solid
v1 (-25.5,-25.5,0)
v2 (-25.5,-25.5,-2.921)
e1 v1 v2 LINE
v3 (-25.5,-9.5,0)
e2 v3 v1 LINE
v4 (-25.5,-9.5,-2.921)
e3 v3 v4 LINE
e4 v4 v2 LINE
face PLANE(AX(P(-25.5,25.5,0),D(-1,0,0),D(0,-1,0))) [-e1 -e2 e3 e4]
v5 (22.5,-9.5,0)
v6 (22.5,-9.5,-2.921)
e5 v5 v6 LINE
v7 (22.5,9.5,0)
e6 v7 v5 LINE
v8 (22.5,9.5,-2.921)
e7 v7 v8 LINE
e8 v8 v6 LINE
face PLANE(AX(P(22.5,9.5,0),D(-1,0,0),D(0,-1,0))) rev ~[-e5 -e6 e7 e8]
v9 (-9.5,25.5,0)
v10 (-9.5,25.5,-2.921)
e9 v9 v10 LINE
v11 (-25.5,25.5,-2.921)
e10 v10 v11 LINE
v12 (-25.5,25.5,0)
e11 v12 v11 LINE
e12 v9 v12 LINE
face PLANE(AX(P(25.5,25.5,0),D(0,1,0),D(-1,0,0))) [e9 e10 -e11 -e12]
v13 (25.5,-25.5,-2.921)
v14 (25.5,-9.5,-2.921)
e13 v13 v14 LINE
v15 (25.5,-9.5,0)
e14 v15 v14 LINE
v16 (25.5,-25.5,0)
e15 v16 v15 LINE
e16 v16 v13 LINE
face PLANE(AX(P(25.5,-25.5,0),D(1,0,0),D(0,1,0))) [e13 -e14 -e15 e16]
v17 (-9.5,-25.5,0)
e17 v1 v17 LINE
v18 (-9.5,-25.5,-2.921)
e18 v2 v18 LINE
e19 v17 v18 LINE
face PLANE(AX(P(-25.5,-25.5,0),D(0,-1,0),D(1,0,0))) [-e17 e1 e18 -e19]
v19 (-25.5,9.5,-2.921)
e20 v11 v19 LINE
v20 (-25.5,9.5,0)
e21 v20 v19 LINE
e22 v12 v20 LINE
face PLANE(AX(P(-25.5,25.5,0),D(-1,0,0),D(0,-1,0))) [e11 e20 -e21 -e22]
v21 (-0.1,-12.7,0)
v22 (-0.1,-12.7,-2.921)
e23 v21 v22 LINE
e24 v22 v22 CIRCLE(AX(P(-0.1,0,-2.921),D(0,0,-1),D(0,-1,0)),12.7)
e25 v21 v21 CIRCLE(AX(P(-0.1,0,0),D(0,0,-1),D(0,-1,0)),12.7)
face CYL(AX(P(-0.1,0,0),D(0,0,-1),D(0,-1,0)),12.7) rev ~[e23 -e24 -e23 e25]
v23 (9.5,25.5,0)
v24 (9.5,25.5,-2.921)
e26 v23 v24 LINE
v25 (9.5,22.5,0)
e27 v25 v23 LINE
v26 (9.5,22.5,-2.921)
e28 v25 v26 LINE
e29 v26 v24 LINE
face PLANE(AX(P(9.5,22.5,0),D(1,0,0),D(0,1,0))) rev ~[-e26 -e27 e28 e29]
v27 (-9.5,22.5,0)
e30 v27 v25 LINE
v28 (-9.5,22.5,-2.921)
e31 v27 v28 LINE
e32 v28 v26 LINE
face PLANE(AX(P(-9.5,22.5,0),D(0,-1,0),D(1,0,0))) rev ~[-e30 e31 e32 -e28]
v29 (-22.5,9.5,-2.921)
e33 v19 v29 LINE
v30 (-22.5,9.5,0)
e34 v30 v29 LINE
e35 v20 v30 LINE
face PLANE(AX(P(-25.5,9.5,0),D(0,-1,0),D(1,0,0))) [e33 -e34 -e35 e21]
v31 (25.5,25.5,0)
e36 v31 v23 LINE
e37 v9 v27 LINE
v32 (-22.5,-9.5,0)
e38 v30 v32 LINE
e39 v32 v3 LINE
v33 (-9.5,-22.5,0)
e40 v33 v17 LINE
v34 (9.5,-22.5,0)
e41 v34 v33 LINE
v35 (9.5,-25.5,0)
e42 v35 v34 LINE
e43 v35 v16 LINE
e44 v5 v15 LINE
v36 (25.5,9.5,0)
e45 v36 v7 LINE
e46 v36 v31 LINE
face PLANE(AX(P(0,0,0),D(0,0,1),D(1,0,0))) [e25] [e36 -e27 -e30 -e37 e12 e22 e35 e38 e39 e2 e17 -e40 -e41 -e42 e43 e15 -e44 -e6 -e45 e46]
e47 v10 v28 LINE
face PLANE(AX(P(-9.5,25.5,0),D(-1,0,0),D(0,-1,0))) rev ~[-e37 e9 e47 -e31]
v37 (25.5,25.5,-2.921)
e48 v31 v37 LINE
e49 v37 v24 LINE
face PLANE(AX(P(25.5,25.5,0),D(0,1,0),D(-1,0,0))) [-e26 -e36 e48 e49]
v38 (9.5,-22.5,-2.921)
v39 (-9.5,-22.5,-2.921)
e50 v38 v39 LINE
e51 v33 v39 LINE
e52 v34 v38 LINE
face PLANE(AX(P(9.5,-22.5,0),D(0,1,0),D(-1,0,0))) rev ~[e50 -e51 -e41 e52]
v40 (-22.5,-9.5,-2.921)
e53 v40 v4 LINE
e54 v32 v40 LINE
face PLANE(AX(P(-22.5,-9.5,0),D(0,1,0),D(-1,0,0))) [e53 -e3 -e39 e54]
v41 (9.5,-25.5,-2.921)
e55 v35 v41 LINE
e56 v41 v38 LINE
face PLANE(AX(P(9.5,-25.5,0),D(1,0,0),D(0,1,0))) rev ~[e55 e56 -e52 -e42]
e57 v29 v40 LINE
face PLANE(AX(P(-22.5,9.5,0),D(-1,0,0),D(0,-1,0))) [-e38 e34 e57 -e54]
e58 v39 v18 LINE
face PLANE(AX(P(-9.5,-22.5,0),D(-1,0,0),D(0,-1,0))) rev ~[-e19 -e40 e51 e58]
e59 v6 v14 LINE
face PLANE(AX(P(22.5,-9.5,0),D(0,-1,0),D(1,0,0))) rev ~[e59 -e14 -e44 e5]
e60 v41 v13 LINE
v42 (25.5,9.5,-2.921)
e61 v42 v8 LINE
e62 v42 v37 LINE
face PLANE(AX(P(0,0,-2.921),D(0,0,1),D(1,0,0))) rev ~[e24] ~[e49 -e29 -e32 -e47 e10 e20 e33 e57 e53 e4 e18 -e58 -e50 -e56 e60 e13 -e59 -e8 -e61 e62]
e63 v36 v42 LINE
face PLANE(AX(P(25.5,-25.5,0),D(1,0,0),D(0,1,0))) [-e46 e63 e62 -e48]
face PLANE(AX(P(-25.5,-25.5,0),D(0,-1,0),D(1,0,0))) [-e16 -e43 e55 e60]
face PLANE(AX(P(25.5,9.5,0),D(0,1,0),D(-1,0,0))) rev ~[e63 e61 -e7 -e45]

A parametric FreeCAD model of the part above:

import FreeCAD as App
import Part
import Sketcher

V = App.Vector
Q = App.Units.Quantity

doc = App.newDocument("Part")
params = doc.addObject("Spreadsheet::Sheet", "Params")
for row, (alias, value) in enumerate([
    ("sketch1_width", "51 mm"),
    ("pad1_length", "2.921 mm"),
    ("sketch2_width", "19 mm"),
    ("sketch2_width2", "3 mm"),
    ("pocket1_length", "25.4 mm"),
    ("sketch3_diameter", "25.4 mm"),
    ("hole_diameter", "25.4 mm"),
], start=1):
    params.set(f"A{row}", alias)
    params.set(f"B{row}", "=" + value)
    params.setAlias(f"B{row}", alias)

body = doc.addObject("PartDesign::Body", "Body")

# Sketch on XY plane
sketch1 = body.newObject("Sketcher::SketchObject", "Sketch")
sketch1.AttachmentSupport = (doc.getObject("XY_Plane"), [""])
sketch1.MapMode = "FlatFace"
sketch1.addGeometry(Part.LineSegment(V(-26, 26, 0), V(-26, -26, 0)), False)
sketch1.addGeometry(Part.LineSegment(V(-26, -26, 0), V(26, -26, 0)), False)
sketch1.addGeometry(Part.LineSegment(V(26, -26, 0), V(26, 26, 0)), False)
sketch1.addGeometry(Part.LineSegment(V(26, 26, 0), V(-26, 26, 0)), False)
sketch1.addConstraint(Sketcher.Constraint("Coincident", 0, 2, 1, 1))
sketch1.addConstraint(Sketcher.Constraint("Coincident", 1, 2, 2, 1))
sketch1.addConstraint(Sketcher.Constraint("Coincident", 2, 2, 3, 1))
sketch1.addConstraint(Sketcher.Constraint("Coincident", 3, 2, 0, 1))
sketch1.addConstraint(Sketcher.Constraint("Vertical", 0))
sketch1.addConstraint(Sketcher.Constraint("Horizontal", 1))
sketch1.addConstraint(Sketcher.Constraint("Vertical", 2))
sketch1.addConstraint(Sketcher.Constraint("Horizontal", 3))
sketch1.addConstraint(Sketcher.Constraint("Symmetric", 0, 2, 2, 2, -1, 1))
sketch1.addConstraint(Sketcher.Constraint("Equal", 3, 0))
sketch1.addConstraint(Sketcher.Constraint("DistanceX", 1, 1, 1, 2, Q("51 mm")))
sketch1.setExpression("Constraints[10]", "Params.sketch1_width")
pad1 = body.newObject("PartDesign::Pad", "Pad")
pad1.Profile = sketch1
pad1.setExpression("Length", "Params.pad1_length")
pad1.Reversed = True

# Sketch on XY plane
sketch2 = body.newObject("Sketcher::SketchObject", "Sketch001")
sketch2.AttachmentSupport = (doc.getObject("XY_Plane"), [""])
sketch2.MapMode = "FlatFace"
sketch2.addGeometry(Part.LineSegment(V(9.5, 25.5, 0), V(-9.5, 25.5, 0)), False)
sketch2.addGeometry(Part.LineSegment(V(-9.5, 25.5, 0), V(-9.5, 22.5, 0)), False)
sketch2.addGeometry(Part.LineSegment(V(-9.5, 22.5, 0), V(9.5, 22.5, 0)), False)
sketch2.addGeometry(Part.LineSegment(V(9.5, 22.5, 0), V(9.5, 25.5, 0)), False)
sketch2.addGeometry(Part.LineSegment(V(-22.5, 9.5, 0), V(-25.5, 9.5, 0)), False)
sketch2.addGeometry(Part.LineSegment(V(-25.5, 9.5, 0), V(-25.5, -9.5, 0)), False)
sketch2.addGeometry(Part.LineSegment(V(-25.5, -9.5, 0), V(-22.5, -9.5, 0)), False)
sketch2.addGeometry(Part.LineSegment(V(-22.5, -9.5, 0), V(-22.5, 9.5, 0)), False)
sketch2.addGeometry(Part.LineSegment(V(25.5, -9.5, 0), V(25.5, 9.5, 0)), False)
sketch2.addGeometry(Part.LineSegment(V(25.5, 9.5, 0), V(22.5, 9.5, 0)), False)
sketch2.addGeometry(Part.LineSegment(V(22.5, 9.5, 0), V(22.5, -9.5, 0)), False)
sketch2.addGeometry(Part.LineSegment(V(22.5, -9.5, 0), V(25.5, -9.5, 0)), False)
sketch2.addGeometry(Part.LineSegment(V(-9.5, -22.5, 0), V(-9.5, -25.5, 0)), False)
sketch2.addGeometry(Part.LineSegment(V(-9.5, -25.5, 0), V(9.5, -25.5, 0)), False)
sketch2.addGeometry(Part.LineSegment(V(9.5, -25.5, 0), V(9.5, -22.5, 0)), False)
sketch2.addGeometry(Part.LineSegment(V(9.5, -22.5, 0), V(-9.5, -22.5, 0)), False)
sketch2.addConstraint(Sketcher.Constraint("Coincident", 0, 2, 1, 1))
sketch2.addConstraint(Sketcher.Constraint("Coincident", 1, 2, 2, 1))
sketch2.addConstraint(Sketcher.Constraint("Coincident", 2, 2, 3, 1))
sketch2.addConstraint(Sketcher.Constraint("Coincident", 3, 2, 0, 1))
sketch2.addConstraint(Sketcher.Constraint("Coincident", 4, 2, 5, 1))
sketch2.addConstraint(Sketcher.Constraint("Coincident", 5, 2, 6, 1))
sketch2.addConstraint(Sketcher.Constraint("Coincident", 6, 2, 7, 1))
sketch2.addConstraint(Sketcher.Constraint("Coincident", 7, 2, 4, 1))
sketch2.addConstraint(Sketcher.Constraint("Coincident", 8, 2, 9, 1))
sketch2.addConstraint(Sketcher.Constraint("Coincident", 9, 2, 10, 1))
sketch2.addConstraint(Sketcher.Constraint("Coincident", 10, 2, 11, 1))
sketch2.addConstraint(Sketcher.Constraint("Coincident", 11, 2, 8, 1))
sketch2.addConstraint(Sketcher.Constraint("Coincident", 12, 2, 13, 1))
sketch2.addConstraint(Sketcher.Constraint("Coincident", 13, 2, 14, 1))
sketch2.addConstraint(Sketcher.Constraint("Coincident", 14, 2, 15, 1))
sketch2.addConstraint(Sketcher.Constraint("Coincident", 15, 2, 12, 1))
sketch2.addConstraint(Sketcher.Constraint("Horizontal", 0))
sketch2.addConstraint(Sketcher.Constraint("Vertical", 1))
sketch2.addConstraint(Sketcher.Constraint("Horizontal", 2))
sketch2.addConstraint(Sketcher.Constraint("Vertical", 3))
sketch2.addConstraint(Sketcher.Constraint("Horizontal", 4))
sketch2.addConstraint(Sketcher.Constraint("Vertical", 5))
sketch2.addConstraint(Sketcher.Constraint("Horizontal", 6))
sketch2.addConstraint(Sketcher.Constraint("Vertical", 7))
sketch2.addConstraint(Sketcher.Constraint("Vertical", 8))
sketch2.addConstraint(Sketcher.Constraint("Horizontal", 9))
sketch2.addConstraint(Sketcher.Constraint("Vertical", 10))
sketch2.addConstraint(Sketcher.Constraint("Horizontal", 11))
sketch2.addConstraint(Sketcher.Constraint("Vertical", 12))
sketch2.addConstraint(Sketcher.Constraint("Horizontal", 13))
sketch2.addConstraint(Sketcher.Constraint("Vertical", 14))
sketch2.addConstraint(Sketcher.Constraint("Horizontal", 15))
sketch2.addConstraint(Sketcher.Constraint("Symmetric", 5, 2, 8, 2, -1, 1))
sketch2.addConstraint(Sketcher.Constraint("Symmetric", 7, 2, 10, 2, -1, 1))
sketch2.addConstraint(Sketcher.Constraint("Symmetric", 3, 2, 12, 2, -1, 1))
sketch2.addConstraint(Sketcher.Constraint("Symmetric", 1, 2, 14, 2, -1, 1))
sketch2.addConstraint(Sketcher.Constraint("Horizontal", 7, 2, 8, 2))
sketch2.addConstraint(Sketcher.Constraint("Vertical", 1, 2, 12, 2))
sketch2.addConstraint(Sketcher.Constraint("Equal", 11, 1))
sketch2.addConstraint(Sketcher.Constraint("Equal", 15, 5))
sketch2.addConstraint(Sketcher.Constraint("DistanceX", 0, 2, 0, 1, Q("19 mm")))
sketch2.addConstraint(Sketcher.Constraint("DistanceX", 4, 2, 4, 1, Q("3 mm")))
sketch2.addConstraint(Sketcher.Constraint("DistanceX", 4, 2, 1, 2, Q("16 mm")))
sketch2.addConstraint(Sketcher.Constraint("DistanceY", 4, 2, 0, 2, Q("16 mm")))
sketch2.setExpression("Constraints[40]", "Params.sketch2_width")
sketch2.setExpression("Constraints[41]", "Params.sketch2_width2")
pocket1 = body.newObject("PartDesign::Pocket", "Pocket")
pocket1.Profile = sketch2
pocket1.setExpression("Length", "Params.pocket1_length")

# Sketch on XY plane
sketch3 = body.newObject("Sketcher::SketchObject", "Sketch002")
sketch3.AttachmentSupport = (doc.getObject("XY_Plane"), [""])
sketch3.MapMode = "FlatFace"
sketch3.addGeometry(Part.Circle(V(0, 0, 0), V(0, 0, 1), 13), False)
sketch3.addConstraint(Sketcher.Constraint("PointOnObject", 0, 3, -1))
sketch3.addConstraint(Sketcher.Constraint("Diameter", 0, Q("25.4 mm")))
sketch3.addConstraint(Sketcher.Constraint("DistanceX", 0, 3, -1, 1, Q("0.1 mm")))
sketch3.setExpression("Constraints[1]", "Params.sketch3_diameter")
doc.recompute()
hole = body.newObject("PartDesign::Hole", "Hole")
hole.Profile = sketch3
hole.ThreadType = "None"
hole.setExpression("Diameter", "Params.hole_diameter")
hole.DepthType = "ThroughAll"

doc.recompute()
